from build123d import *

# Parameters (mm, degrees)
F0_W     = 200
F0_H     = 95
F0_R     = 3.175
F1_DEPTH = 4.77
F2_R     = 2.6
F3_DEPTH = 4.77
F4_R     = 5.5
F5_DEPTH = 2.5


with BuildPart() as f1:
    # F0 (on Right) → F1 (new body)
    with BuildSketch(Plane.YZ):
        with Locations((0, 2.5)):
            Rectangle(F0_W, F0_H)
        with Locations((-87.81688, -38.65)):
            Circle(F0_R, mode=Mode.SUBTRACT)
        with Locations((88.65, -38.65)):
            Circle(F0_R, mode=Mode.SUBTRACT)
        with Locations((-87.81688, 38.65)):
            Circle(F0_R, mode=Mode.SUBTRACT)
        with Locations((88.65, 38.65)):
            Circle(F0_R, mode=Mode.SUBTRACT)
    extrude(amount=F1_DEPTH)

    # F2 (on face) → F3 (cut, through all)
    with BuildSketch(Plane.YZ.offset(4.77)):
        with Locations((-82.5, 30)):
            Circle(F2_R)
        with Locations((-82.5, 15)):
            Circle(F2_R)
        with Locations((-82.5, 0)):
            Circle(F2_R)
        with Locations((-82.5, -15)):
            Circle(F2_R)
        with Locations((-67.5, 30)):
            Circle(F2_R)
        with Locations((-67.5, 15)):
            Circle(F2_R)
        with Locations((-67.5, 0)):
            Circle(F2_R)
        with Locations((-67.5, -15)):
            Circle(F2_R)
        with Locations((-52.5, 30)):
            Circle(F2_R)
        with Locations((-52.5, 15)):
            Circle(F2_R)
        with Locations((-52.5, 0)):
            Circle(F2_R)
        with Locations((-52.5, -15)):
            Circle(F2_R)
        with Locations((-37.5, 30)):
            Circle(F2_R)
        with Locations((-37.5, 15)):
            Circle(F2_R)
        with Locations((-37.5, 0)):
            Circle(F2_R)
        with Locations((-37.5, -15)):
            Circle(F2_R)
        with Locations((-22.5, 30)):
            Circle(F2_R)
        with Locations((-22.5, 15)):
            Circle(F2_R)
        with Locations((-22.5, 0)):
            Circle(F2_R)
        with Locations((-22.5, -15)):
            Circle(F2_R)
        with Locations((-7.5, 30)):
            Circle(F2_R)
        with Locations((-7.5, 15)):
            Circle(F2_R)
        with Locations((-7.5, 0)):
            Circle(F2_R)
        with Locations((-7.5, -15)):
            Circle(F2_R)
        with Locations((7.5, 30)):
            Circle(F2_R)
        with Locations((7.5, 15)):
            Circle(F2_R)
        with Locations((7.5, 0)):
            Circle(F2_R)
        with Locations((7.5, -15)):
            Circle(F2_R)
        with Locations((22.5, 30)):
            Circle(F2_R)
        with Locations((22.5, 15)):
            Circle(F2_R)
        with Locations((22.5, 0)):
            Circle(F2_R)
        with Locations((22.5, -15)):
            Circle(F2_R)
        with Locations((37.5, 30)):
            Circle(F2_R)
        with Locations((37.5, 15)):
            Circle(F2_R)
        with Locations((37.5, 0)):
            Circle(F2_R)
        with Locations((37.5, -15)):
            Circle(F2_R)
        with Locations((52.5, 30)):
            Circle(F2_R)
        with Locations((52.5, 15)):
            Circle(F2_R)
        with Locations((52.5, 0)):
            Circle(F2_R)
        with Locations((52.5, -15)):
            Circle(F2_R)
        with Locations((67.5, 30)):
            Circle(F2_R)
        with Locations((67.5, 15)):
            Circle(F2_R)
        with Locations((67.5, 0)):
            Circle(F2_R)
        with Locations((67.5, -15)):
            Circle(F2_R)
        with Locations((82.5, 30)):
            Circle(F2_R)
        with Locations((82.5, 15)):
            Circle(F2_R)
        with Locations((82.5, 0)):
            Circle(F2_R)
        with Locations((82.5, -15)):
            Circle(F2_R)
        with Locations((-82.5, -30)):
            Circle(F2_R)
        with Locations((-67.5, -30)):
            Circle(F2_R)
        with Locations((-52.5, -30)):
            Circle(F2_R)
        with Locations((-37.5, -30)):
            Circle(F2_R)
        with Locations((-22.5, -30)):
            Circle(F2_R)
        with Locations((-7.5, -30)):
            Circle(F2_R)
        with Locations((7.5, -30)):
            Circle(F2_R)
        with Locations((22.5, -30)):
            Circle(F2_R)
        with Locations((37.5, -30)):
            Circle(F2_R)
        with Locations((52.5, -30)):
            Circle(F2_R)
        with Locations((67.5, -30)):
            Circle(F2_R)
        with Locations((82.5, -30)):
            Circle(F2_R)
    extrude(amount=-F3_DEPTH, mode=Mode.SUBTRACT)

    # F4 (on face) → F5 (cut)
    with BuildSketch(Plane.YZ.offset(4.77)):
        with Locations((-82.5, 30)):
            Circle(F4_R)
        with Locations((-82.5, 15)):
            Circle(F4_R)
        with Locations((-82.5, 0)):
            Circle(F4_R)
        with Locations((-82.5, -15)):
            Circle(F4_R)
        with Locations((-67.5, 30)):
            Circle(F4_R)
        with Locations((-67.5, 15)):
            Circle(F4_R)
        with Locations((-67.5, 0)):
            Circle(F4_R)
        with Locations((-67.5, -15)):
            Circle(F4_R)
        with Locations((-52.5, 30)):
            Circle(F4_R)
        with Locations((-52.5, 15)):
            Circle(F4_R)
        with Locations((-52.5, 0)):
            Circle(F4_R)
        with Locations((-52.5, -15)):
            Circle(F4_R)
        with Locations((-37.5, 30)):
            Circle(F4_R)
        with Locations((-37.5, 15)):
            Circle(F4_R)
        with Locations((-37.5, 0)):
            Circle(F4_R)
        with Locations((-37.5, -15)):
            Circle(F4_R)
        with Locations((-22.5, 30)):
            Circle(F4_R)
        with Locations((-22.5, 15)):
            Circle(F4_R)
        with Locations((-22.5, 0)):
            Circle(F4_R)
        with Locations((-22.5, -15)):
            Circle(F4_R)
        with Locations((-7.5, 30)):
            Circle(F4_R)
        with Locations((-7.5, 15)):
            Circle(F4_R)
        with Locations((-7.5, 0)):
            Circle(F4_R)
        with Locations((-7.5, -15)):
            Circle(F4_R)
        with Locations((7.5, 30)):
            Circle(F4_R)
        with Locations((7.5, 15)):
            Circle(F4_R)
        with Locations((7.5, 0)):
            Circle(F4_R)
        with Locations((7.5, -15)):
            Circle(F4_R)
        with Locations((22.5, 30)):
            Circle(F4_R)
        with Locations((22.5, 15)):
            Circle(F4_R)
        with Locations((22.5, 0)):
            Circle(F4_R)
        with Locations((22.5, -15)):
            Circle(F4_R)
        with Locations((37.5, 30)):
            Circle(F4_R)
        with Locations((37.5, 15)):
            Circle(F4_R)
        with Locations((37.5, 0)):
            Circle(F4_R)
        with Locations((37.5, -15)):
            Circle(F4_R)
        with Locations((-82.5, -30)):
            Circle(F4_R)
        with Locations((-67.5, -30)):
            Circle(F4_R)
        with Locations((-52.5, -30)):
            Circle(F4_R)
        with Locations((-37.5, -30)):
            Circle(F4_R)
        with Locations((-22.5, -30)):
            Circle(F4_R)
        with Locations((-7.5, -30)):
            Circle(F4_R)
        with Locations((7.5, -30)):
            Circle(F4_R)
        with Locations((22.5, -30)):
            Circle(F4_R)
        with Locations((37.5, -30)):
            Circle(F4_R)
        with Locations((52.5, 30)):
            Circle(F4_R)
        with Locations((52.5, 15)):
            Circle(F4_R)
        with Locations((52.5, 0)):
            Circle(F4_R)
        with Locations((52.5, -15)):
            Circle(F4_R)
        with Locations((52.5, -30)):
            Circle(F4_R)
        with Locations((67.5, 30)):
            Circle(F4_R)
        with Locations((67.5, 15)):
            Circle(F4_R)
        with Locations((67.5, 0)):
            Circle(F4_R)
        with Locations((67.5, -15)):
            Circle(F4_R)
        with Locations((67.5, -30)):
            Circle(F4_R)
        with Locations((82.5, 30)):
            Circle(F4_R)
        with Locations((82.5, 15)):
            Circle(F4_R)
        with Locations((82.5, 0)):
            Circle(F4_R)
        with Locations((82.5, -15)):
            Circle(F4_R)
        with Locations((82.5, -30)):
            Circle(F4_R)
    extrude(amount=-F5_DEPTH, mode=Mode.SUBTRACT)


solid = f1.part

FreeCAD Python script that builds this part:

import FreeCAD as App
import Part
import Sketcher
from FreeCAD import Vector
Q = App.Units.Quantity


def add_polygon(sketch, points):
    """Adds a closed chain of lines whose ends are joined by coincident constraints."""
    first, n = sketch.GeometryCount, len(points)
    for a, b in zip(points, points[1:] + points[:1]):
        sketch.addGeometry(Part.LineSegment(App.Vector(*a, 0), App.Vector(*b, 0)), False)
    for i in range(n):
        sketch.addConstraint(Sketcher.Constraint("Coincident", first + i, 2, first + (i + 1) % n, 1))

doc = App.newDocument("Part")
body = doc.addObject("PartDesign::Body", "Body")

sketch1 = body.newObject("Sketcher::SketchObject", "Sketch")
sketch1.AttachmentSupport = (doc.getObject("YZ_Plane"), [""])
sketch1.MapMode = "FlatFace"
add_polygon(sketch1, [(-100, 50), (-100, -45), (100, -45), (100, 50)])
sketch1.addGeometry(Part.Circle(Vector(-87.8, -38.6, 0), Vector(0, 0, 1), 3.2), False)
sketch1.addGeometry(Part.Circle(Vector(88.7, -38.6, 0), Vector(0, 0, 1), 3.2), False)
sketch1.addGeometry(Part.Circle(Vector(-87.8, 38.6, 0), Vector(0, 0, 1), 3.2), False)
sketch1.addGeometry(Part.Circle(Vector(88.7, 38.6, 0), Vector(0, 0, 1), 3.2), False)
sketch1.addConstraint(Sketcher.Constraint("Vertical", 0))
sketch1.addConstraint(Sketcher.Constraint("Horizontal", 1))
sketch1.addConstraint(Sketcher.Constraint("Vertical", 2))
sketch1.addConstraint(Sketcher.Constraint("Horizontal", 3))
sketch1.addConstraint(Sketcher.Constraint("Equal", 4, 5))
sketch1.addConstraint(Sketcher.Constraint("Equal", 5, 6))
sketch1.addConstraint(Sketcher.Constraint("Equal", 6, 7))
sketch1.addConstraint(Sketcher.Constraint("Symmetric", 4, 3, 6, 3, -1))
sketch1.addConstraint(Sketcher.Constraint("Symmetric", 5, 3, 7, 3, -1))
sketch1.addConstraint(Sketcher.Constraint("Horizontal", 4, 3, 5, 3))
sketch1.addConstraint(Sketcher.Constraint("Diameter", 4, Q("6.35 mm")))
sketch1.addConstraint(Sketcher.Constraint("DistanceX", 1, 1, 1, 2, Q("200 mm")))
sketch1.addConstraint(Sketcher.Constraint("DistanceY", 0, 2, 0, 1, Q("95 mm")))
sketch1.addConstraint(Sketcher.Constraint("DistanceX", 0, 2, -1, 1, Q("100 mm")))
sketch1.addConstraint(Sketcher.Constraint("DistanceY", 0, 2, -1, 1, Q("45 mm")))
sketch1.addConstraint(Sketcher.Constraint("DistanceY", 4, 3, 6, 3, Q("77.3 mm")))
sketch1.addConstraint(Sketcher.Constraint("DistanceX", -1, 1, 5, 3, Q("88.65 mm")))
sketch1.addConstraint(Sketcher.Constraint("DistanceX", 4, 3, -1, 1, Q("87.81688 mm")))
pad1 = body.newObject("PartDesign::Pad", "Pad")
pad1.Profile = sketch1
pad1.Length = 4.77

sketch2 = body.newObject("Sketcher::SketchObject", "Sketch001")
sketch2.AttachmentSupport = (doc.getObject("YZ_Plane"), [""])
sketch2.MapMode = "FlatFace"
sketch2.AttachmentOffset = App.Placement(Vector(0, 0, 4.77), App.Rotation())
sketch2.addGeometry(Part.Circle(Vector(-82.5, 30, 0), Vector(0, 0, 1), 2.6), False)
sketch2.addGeometry(Part.Circle(Vector(-82.5, 15, 0), Vector(0, 0, 1), 2.6), False)
sketch2.addGeometry(Part.Circle(Vector(-82.5, 0, 0), Vector(0, 0, 1), 2.6), False)
sketch2.addGeometry(Part.Circle(Vector(-82.5, -15, 0), Vector(0, 0, 1), 2.6), False)
sketch2.addGeometry(Part.Circle(Vector(-67.5, 30, 0), Vector(0, 0, 1), 2.6), False)
sketch2.addGeometry(Part.Circle(Vector(-67.5, 15, 0), Vector(0, 0, 1), 2.6), False)
sketch2.addGeometry(Part.Circle(Vector(-67.5, 0, 0), Vector(0, 0, 1), 2.6), False)
sketch2.addGeometry(Part.Circle(Vector(-67.5, -15, 0), Vector(0, 0, 1), 2.6), False)
sketch2.addGeometry(Part.Circle(Vector(-52.5, 30, 0), Vector(0, 0, 1), 2.6), False)
sketch2.addGeometry(Part.Circle(Vector(-52.5, 15, 0), Vector(0, 0, 1), 2.6), False)
sketch2.addGeometry(Part.Circle(Vector(-52.5, 0, 0), Vector(0, 0, 1), 2.6), False)
sketch2.addGeometry(Part.Circle(Vector(-52.5, -15, 0), Vector(0, 0, 1), 2.6), False)
sketch2.addGeometry(Part.Circle(Vector(-37.5, 30, 0), Vector(0, 0, 1), 2.6), False)
sketch2.addGeometry(Part.Circle(Vector(-37.5, 15, 0), Vector(0, 0, 1), 2.6), False)
sketch2.addGeometry(Part.Circle(Vector(-37.5, 0, 0), Vector(0, 0, 1), 2.6), False)
sketch2.addGeometry(Part.Circle(Vector(-37.5, -15, 0), Vector(0, 0, 1), 2.6), False)
sketch2.addGeometry(Part.Circle(Vector(-22.5, 30, 0), Vector(0, 0, 1), 2.6), False)
sketch2.addGeometry(Part.Circle(Vector(-22.5, 15, 0), Vector(0, 0, 1), 2.6), False)
sketch2.addGeometry(Part.Circle(Vector(-22.5, 0, 0), Vector(0, 0, 1), 2.6), False)
sketch2.addGeometry(Part.Circle(Vector(-22.5, -15, 0), Vector(0, 0, 1), 2.6), False)
sketch2.addGeometry(Part.Circle(Vector(-7.5, 30, 0), Vector(0, 0, 1), 2.6), False)
sketch2.addGeometry(Part.Circle(Vector(-7.5, 15, 0), Vector(0, 0, 1), 2.6), False)
sketch2.addGeometry(Part.Circle(Vector(-7.5, 0, 0), Vector(0, 0, 1), 2.6), False)
sketch2.addGeometry(Part.Circle(Vector(-7.5, -15, 0), Vector(0, 0, 1), 2.6), False)
sketch2.addGeometry(Part.Circle(Vector(7.5, 30, 0), Vector(0, 0, 1), 2.6), False)
sketch2.addGeometry(Part.Circle(Vector(7.5, 15, 0), Vector(0, 0, 1), 2.6), False)
sketch2.addGeometry(Part.Circle(Vector(7.5, 0, 0), Vector(0, 0, 1), 2.6), False)
sketch2.addGeometry(Part.Circle(Vector(7.5, -15, 0), Vector(0, 0, 1), 2.6), False)
sketch2.addGeometry(Part.Circle(Vector(22.5, 30, 0), Vector(0, 0, 1), 2.6), False)
sketch2.addGeometry(Part.Circle(Vector(22.5, 15, 0), Vector(0, 0, 1), 2.6), False)
sketch2.addGeometry(Part.Circle(Vector(22.5, 0, 0), Vector(0, 0, 1), 2.6), False)
sketch2.addGeometry(Part.Circle(Vector(22.5, -15, 0), Vector(0, 0, 1), 2.6), False)
sketch2.addGeometry(Part.Circle(Vector(37.5, 30, 0), Vector(0, 0, 1), 2.6), False)
sketch2.addGeometry(Part.Circle(Vector(37.5, 15, 0), Vector(0, 0, 1), 2.6), False)
sketch2.addGeometry(Part.Circle(Vector(37.5, 0, 0), Vector(0, 0, 1), 2.6), False)
sketch2.addGeometry(Part.Circle(Vector(37.5, -15, 0), Vector(0, 0, 1), 2.6), False)
sketch2.addGeometry(Part.Circle(Vector(52.5, 30, 0), Vector(0, 0, 1), 2.6), False)
sketch2.addGeometry(Part.Circle(Vector(52.5, 15, 0), Vector(0, 0, 1), 2.6), False)
sketch2.addGeometry(Part.Circle(Vector(52.5, 0, 0), Vector(0, 0, 1), 2.6), False)
sketch2.addGeometry(Part.Circle(Vector(52.5, -15, 0), Vector(0, 0, 1), 2.6), False)
sketch2.addGeometry(Part.Circle(Vector(67.5, 30, 0), Vector(0, 0, 1), 2.6), False)
sketch2.addGeometry(Part.Circle(Vector(67.5, 15, 0), Vector(0, 0, 1), 2.6), False)
sketch2.addGeometry(Part.Circle(Vector(67.5, 0, 0), Vector(0, 0, 1), 2.6), False)
sketch2.addGeometry(Part.Circle(Vector(67.5, -15, 0), Vector(0, 0, 1), 2.6), False)
sketch2.addGeometry(Part.Circle(Vector(82.5, 30, 0), Vector(0, 0, 1), 2.6), False)
sketch2.addGeometry(Part.Circle(Vector(82.5, 15, 0), Vector(0, 0, 1), 2.6), False)
sketch2.addGeometry(Part.Circle(Vector(82.5, 0, 0), Vector(0, 0, 1), 2.6), False)
sketch2.addGeometry(Part.Circle(Vector(82.5, -15, 0), Vector(0, 0, 1), 2.6), False)
sketch2.addGeometry(Part.Circle(Vector(-82.5, -30, 0), Vector(0, 0, 1), 2.6), False)
sketch2.addGeometry(Part.Circle(Vector(-67.5, -30, 0), Vector(0, 0, 1), 2.6), False)
sketch2.addGeometry(Part.Circle(Vector(-52.5, -30, 0), Vector(0, 0, 1), 2.6), False)
sketch2.addGeometry(Part.Circle(Vector(-37.5, -30, 0), Vector(0, 0, 1), 2.6), False)
sketch2.addGeometry(Part.Circle(Vector(-22.5, -30, 0), Vector(0, 0, 1), 2.6), False)
sketch2.addGeometry(Part.Circle(Vector(-7.5, -30, 0), Vector(0, 0, 1), 2.6), False)
sketch2.addGeometry(Part.Circle(Vector(7.5, -30, 0), Vector(0, 0, 1), 2.6), False)
sketch2.addGeometry(Part.Circle(Vector(22.5, -30, 0), Vector(0, 0, 1), 2.6), False)
sketch2.addGeometry(Part.Circle(Vector(37.5, -30, 0), Vector(0, 0, 1), 2.6), False)
sketch2.addGeometry(Part.Circle(Vector(52.5, -30, 0), Vector(0, 0, 1), 2.6), False)
sketch2.addGeometry(Part.Circle(Vector(67.5, -30, 0), Vector(0, 0, 1), 2.6), False)
sketch2.addGeometry(Part.Circle(Vector(82.5, -30, 0), Vector(0, 0, 1), 2.6), False)
sketch2.addConstraint(Sketcher.Constraint("Equal", 0, 1))
sketch2.addConstraint(Sketcher.Constraint("Equal", 1, 2))
sketch2.addConstraint(Sketcher.Constraint("Equal", 2, 3))
sketch2.addConstraint(Sketcher.Constraint("Equal", 3, 4))
sketch2.addConstraint(Sketcher.Constraint("Equal", 4, 5))
sketch2.addConstraint(Sketcher.Constraint("Equal", 5, 6))
sketch2.addConstraint(Sketcher.Constraint("Equal", 6, 7))
sketch2.addConstraint(Sketcher.Constraint("Equal", 7, 8))
sketch2.addConstraint(Sketcher.Constraint("Equal", 8, 9))
sketch2.addConstraint(Sketcher.Constraint("Equal", 9, 10))
sketch2.addConstraint(Sketcher.Constraint("Equal", 10, 11))
sketch2.addConstraint(Sketcher.Constraint("Equal", 11, 12))
sketch2.addConstraint(Sketcher.Constraint("Equal", 12, 13))
sketch2.addConstraint(Sketcher.Constraint("Equal", 13, 14))
sketch2.addConstraint(Sketcher.Constraint("Equal", 14, 15))
sketch2.addConstraint(Sketcher.Constraint("Equal", 15, 16))
sketch2.addConstraint(Sketcher.Constraint("Equal", 16, 17))
sketch2.addConstraint(Sketcher.Constraint("Equal", 17, 18))
sketch2.addConstraint(Sketcher.Constraint("Equal", 18, 19))
sketch2.addConstraint(Sketcher.Constraint("Equal", 19, 20))
sketch2.addConstraint(Sketcher.Constraint("Equal", 20, 21))
sketch2.addConstraint(Sketcher.Constraint("Equal", 21, 22))
sketch2.addConstraint(Sketcher.Constraint("Equal", 22, 23))
sketch2.addConstraint(Sketcher.Constraint("Equal", 23, 24))
sketch2.addConstraint(Sketcher.Constraint("Equal", 24, 25))
sketch2.addConstraint(Sketcher.Constraint("Equal", 25, 26))
sketch2.addConstraint(Sketcher.Constraint("Equal", 26, 27))
sketch2.addConstraint(Sketcher.Constraint("Equal", 27, 28))
sketch2.addConstraint(Sketcher.Constraint("Equal", 28, 29))
sketch2.addConstraint(Sketcher.Constraint("Equal", 29, 30))
sketch2.addConstraint(Sketcher.Constraint("Equal", 30, 31))
sketch2.addConstraint(Sketcher.Constraint("Equal", 31, 32))
sketch2.addConstraint(Sketcher.Constraint("Equal", 32, 33))
sketch2.addConstraint(Sketcher.Constraint("Equal", 33, 34))
sketch2.addConstraint(Sketcher.Constraint("Equal", 34, 35))
sketch2.addConstraint(Sketcher.Constraint("Equal", 35, 36))
sketch2.addConstraint(Sketcher.Constraint("Equal", 36, 37))
sketch2.addConstraint(Sketcher.Constraint("Equal", 37, 38))
sketch2.addConstraint(Sketcher.Constraint("Equal", 38, 39))
sketch2.addConstraint(Sketcher.Constraint("Equal", 39, 40))
sketch2.addConstraint(Sketcher.Constraint("Equal", 40, 41))
sketch2.addConstraint(Sketcher.Constraint("Equal", 41, 42))
sketch2.addConstraint(Sketcher.Constraint("Equal", 42, 43))
sketch2.addConstraint(Sketcher.Constraint("Equal", 43, 44))
sketch2.addConstraint(Sketcher.Constraint("Equal", 44, 45))
sketch2.addConstraint(Sketcher.Constraint("Equal", 45, 46))
sketch2.addConstraint(Sketcher.Constraint("Equal", 46, 47))
sketch2.addConstraint(Sketcher.Constraint("Equal", 47, 48))
sketch2.addConstraint(Sketcher.Constraint("Equal", 48, 49))
sketch2.addConstraint(Sketcher.Constraint("Equal", 49, 50))
sketch2.addConstraint(Sketcher.Constraint("Equal", 50, 51))
sketch2.addConstraint(Sketcher.Constraint("Equal", 51, 52))
sketch2.addConstraint(Sketcher.Constraint("Equal", 52, 53))
sketch2.addConstraint(Sketcher.Constraint("Equal", 53, 54))
sketch2.addConstraint(Sketcher.Constraint("Equal", 54, 55))
sketch2.addConstraint(Sketcher.Constraint("Equal", 55, 56))
sketch2.addConstraint(Sketcher.Constraint("Equal", 56, 57))
sketch2.addConstraint(Sketcher.Constraint("Equal", 57, 58))
sketch2.addConstraint(Sketcher.Constraint("Equal", 58, 59))
sketch2.addConstraint(Sketcher.Constraint("Symmetric", 23, 3, 25, 3, -1, 1))
sketch2.addConstraint(Sketcher.Constraint("Symmetric", 22, 3, 26, 3, -1, 1))
sketch2.addConstraint(Sketcher.Constraint("Symmetric", 21, 3, 27, 3, -1, 1))
sketch2.addConstraint(Sketcher.Constraint("Symmetric", 19, 3, 29, 3, -1, 1))
sketch2.addConstraint(Sketcher.Constraint("Symmetric", 18, 3, 30, 3, -1, 1))
sketch2.addConstraint(Sketcher.Constraint("Symmetric", 17, 3, 31, 3, -1, 1))
sketch2.addConstraint(Sketcher.Constraint("Symmetric", 15, 3, 33, 3, -1, 1))
sketch2.addConstraint(Sketcher.Constraint("Symmetric", 14, 3, 34, 3, -1, 1))
sketch2.addConstraint(Sketcher.Constraint("Symmetric", 13, 3, 35, 3, -1, 1))
sketch2.addConstraint(Sketcher.Constraint("Symmetric", 11, 3, 37, 3, -1, 1))
sketch2.addConstraint(Sketcher.Constraint("Symmetric", 10, 3, 38, 3, -1, 1))
sketch2.addConstraint(Sketcher.Constraint("Symmetric", 9, 3, 39, 3, -1, 1))
sketch2.addConstraint(Sketcher.Constraint("Symmetric", 7, 3, 41, 3, -1, 1))
sketch2.addConstraint(Sketcher.Constraint("Symmetric", 6, 3, 42, 3, -1, 1))
sketch2.addConstraint(Sketcher.Constraint("Symmetric", 5, 3, 43, 3, -1, 1))
sketch2.addConstraint(Sketcher.Constraint("Symmetric", 3, 3, 45, 3, -1, 1))
sketch2.addConstraint(Sketcher.Constraint("Symmetric", 2, 3, 46, 3, -1, 1))
sketch2.addConstraint(Sketcher.Constraint("Symmetric", 1, 3, 47, 3, -1, 1))
sketch2.addConstraint(Sketcher.Constraint("Symmetric", 44, 3, 48, 3, -1, 1))
sketch2.addConstraint(Sketcher.Constraint("Symmetric", 40, 3, 49, 3, -1, 1))
sketch2.addConstraint(Sketcher.Constraint("Symmetric", 36, 3, 50, 3, -1, 1))
sketch2.addConstraint(Sketcher.Constraint("Symmetric", 32, 3, 51, 3, -1, 1))
sketch2.addConstraint(Sketcher.Constraint("Symmetric", 28, 3, 52, 3, -1, 1))
sketch2.addConstraint(Sketcher.Constraint("Symmetric", 24, 3, 53, 3, -1, 1))
sketch2.addConstraint(Sketcher.Constraint("Symmetric", 20, 3, 54, 3, -1, 1))
sketch2.addConstraint(Sketcher.Constraint("Symmetric", 16, 3, 55, 3, -1, 1))
sketch2.addConstraint(Sketcher.Constraint("Symmetric", 12, 3, 56, 3, -1, 1))
sketch2.addConstraint(Sketcher.Constraint("Symmetric", 8, 3, 57, 3, -1, 1))
sketch2.addConstraint(Sketcher.Constraint("Symmetric", 4, 3, 58, 3, -1, 1))
sketch2.addConstraint(Sketcher.Constraint("Symmetric", 0, 3, 59, 3, -1, 1))
sketch2.addConstraint(Sketcher.Constraint("Symmetric", 20, 3, 24, 3, -2))
sketch2.addConstraint(Sketcher.Constraint("Symmetric", 21, 3, 25, 3, -2))
sketch2.addConstraint(Sketcher.Constraint("Symmetric", 16, 3, 28, 3, -2))
sketch2.addConstraint(Sketcher.Constraint("Symmetric", 17, 3, 29, 3, -2))
sketch2.addConstraint(Sketcher.Constraint("Symmetric", 12, 3, 32, 3, -2))
sketch2.addConstraint(Sketcher.Constraint("Symmetric", 13, 3, 33, 3, -2))
sketch2.addConstraint(Sketcher.Constraint("Symmetric", 8, 3, 36, 3, -2))
sketch2.addConstraint(Sketcher.Constraint("Symmetric", 9, 3, 37, 3, -2))
sketch2.addConstraint(Sketcher.Constraint("Symmetric", 4, 3, 40, 3, -2))
sketch2.addConstraint(Sketcher.Constraint("Symmetric", 5, 3, 41, 3, -2))
sketch2.addConstraint(Sketcher.Constraint("Symmetric", 0, 3, 44, 3, -2))
sketch2.addConstraint(Sketcher.Constraint("Symmetric", 1, 3, 45, 3, -2))
sketch2.addConstraint(Sketcher.Constraint("PointOnObject", 2, 3, -1))
sketch2.addConstraint(Sketcher.Constraint("PointOnObject", 6, 3, -1))
sketch2.addConstraint(Sketcher.Constraint("PointOnObject", 10, 3, -1))
sketch2.addConstraint(Sketcher.Constraint("PointOnObject", 14, 3, -1))
sketch2.addConstraint(Sketcher.Constraint("PointOnObject", 18, 3, -1))
sketch2.addConstraint(Sketcher.Constraint("PointOnObject", 22, 3, -1))
sketch2.addConstraint(Sketcher.Constraint("Horizontal", 0, 3, 4, 3))
sketch2.addConstraint(Sketcher.Constraint("Horizontal", 1, 3, 5, 3))
sketch2.addConstraint(Sketcher.Constraint("Horizontal", 4, 3, 8, 3))
sketch2.addConstraint(Sketcher.Constraint("Horizontal", 5, 3, 9, 3))
sketch2.addConstraint(Sketcher.Constraint("Horizontal", 8, 3, 12, 3))
sketch2.addConstraint(Sketcher.Constraint("Horizontal", 9, 3, 13, 3))
sketch2.addConstraint(Sketcher.Constraint("Horizontal", 12, 3, 16, 3))
sketch2.addConstraint(Sketcher.Constraint("Horizontal", 13, 3, 17, 3))
sketch2.addConstraint(Sketcher.Constraint("Horizontal", 16, 3, 20, 3))
sketch2.addConstraint(Sketcher.Constraint("Horizontal", 17, 3, 21, 3))
sketch2.addConstraint(Sketcher.Constraint("Vertical", 0, 3, 1, 3))
sketch2.addConstraint(Sketcher.Constraint("Vertical", 1, 3, 2, 3))
sketch2.addConstraint(Sketcher.Constraint("Vertical", 4, 3, 5, 3))
sketch2.addConstraint(Sketcher.Constraint("Vertical", 5, 3, 6, 3))
sketch2.addConstraint(Sketcher.Constraint("Vertical", 8, 3, 9, 3))
sketch2.addConstraint(Sketcher.Constraint("Vertical", 9, 3, 10, 3))
sketch2.addConstraint(Sketcher.Constraint("Vertical", 12, 3, 13, 3))
sketch2.addConstraint(Sketcher.Constraint("Vertical", 13, 3, 14, 3))
sketch2.addConstraint(Sketcher.Constraint("Vertical", 16, 3, 17, 3))
sketch2.addConstraint(Sketcher.Constraint("Vertical", 17, 3, 18, 3))
sketch2.addConstraint(Sketcher.Constraint("Vertical", 20, 3, 21, 3))
sketch2.addConstraint(Sketcher.Constraint("Vertical", 21, 3, 22, 3))
sketch2.addConstraint(Sketcher.Constraint("Diameter", 0, Q("5.2 mm")))
sketch2.addConstraint(Sketcher.Constraint("DistanceY", -1, 1, 0, 3, Q("30 mm")))
sketch2.addConstraint(Sketcher.Constraint("DistanceY", -1, 1, 1, 3, Q("15 mm")))
sketch2.addConstraint(Sketcher.Constraint("DistanceX", 0, 3, 4, 3, Q("15 mm")))
sketch2.addConstraint(Sketcher.Constraint("DistanceX", 4, 3, 8, 3, Q("15 mm")))
sketch2.addConstraint(Sketcher.Constraint("DistanceX", 8, 3, 12, 3, Q("15 mm")))
sketch2.addConstraint(Sketcher.Constraint("DistanceX", 12, 3, 16, 3, Q("15 mm")))
sketch2.addConstraint(Sketcher.Constraint("DistanceX", 16, 3, 20, 3, Q("15 mm")))
sketch2.addConstraint(Sketcher.Constraint("DistanceX", 20, 3, 24, 3, Q("15 mm")))
pocket1 = body.newObject("PartDesign::Pocket", "Pocket")
pocket1.Profile = sketch2
pocket1.Type = "ThroughAll"

sketch3 = body.newObject("Sketcher::SketchObject", "Sketch002")
sketch3.AttachmentSupport = (doc.getObject("YZ_Plane"), [""])
sketch3.MapMode = "FlatFace"
sketch3.AttachmentOffset = App.Placement(Vector(0, 0, 4.77), App.Rotation())
sketch3.addGeometry(Part.Circle(Vector(-82, 30, 0), Vector(0, 0, 1), 6), False)
sketch3.addGeometry(Part.Circle(Vector(-82, 15, 0), Vector(0, 0, 1), 6), False)
sketch3.addGeometry(Part.Circle(Vector(-82, 0, 0), Vector(0, 0, 1), 6), False)
sketch3.addGeometry(Part.Circle(Vector(-82, -15, 0), Vector(0, 0, 1), 6), False)
sketch3.addGeometry(Part.Circle(Vector(-68, 30, 0), Vector(0, 0, 1), 6), False)
sketch3.addGeometry(Part.Circle(Vector(-68, 15, 0), Vector(0, 0, 1), 6), False)
sketch3.addGeometry(Part.Circle(Vector(-68, 0, 0), Vector(0, 0, 1), 6), False)
sketch3.addGeometry(Part.Circle(Vector(-68, -15, 0), Vector(0, 0, 1), 6), False)
sketch3.addGeometry(Part.Circle(Vector(-52, 30, 0), Vector(0, 0, 1), 6), False)
sketch3.addGeometry(Part.Circle(Vector(-52, 15, 0), Vector(0, 0, 1), 6), False)
sketch3.addGeometry(Part.Circle(Vector(-52, 0, 0), Vector(0, 0, 1), 6), False)
sketch3.addGeometry(Part.Circle(Vector(-52, -15, 0), Vector(0, 0, 1), 6), False)
sketch3.addGeometry(Part.Circle(Vector(-38, 30, 0), Vector(0, 0, 1), 6), False)
sketch3.addGeometry(Part.Circle(Vector(-38, 15, 0), Vector(0, 0, 1), 6), False)
sketch3.addGeometry(Part.Circle(Vector(-38, 0, 0), Vector(0, 0, 1), 6), False)
sketch3.addGeometry(Part.Circle(Vector(-38, -15, 0), Vector(0, 0, 1), 6), False)
sketch3.addGeometry(Part.Circle(Vector(-22, 30, 0), Vector(0, 0, 1), 6), False)
sketch3.addGeometry(Part.Circle(Vector(-22, 15, 0), Vector(0, 0, 1), 6), False)
sketch3.addGeometry(Part.Circle(Vector(-22, 0, 0), Vector(0, 0, 1), 6), False)
sketch3.addGeometry(Part.Circle(Vector(-22, -15, 0), Vector(0, 0, 1), 6), False)
sketch3.addGeometry(Part.Circle(Vector(-8, 30, 0), Vector(0, 0, 1), 6), False)
sketch3.addGeometry(Part.Circle(Vector(-8, 15, 0), Vector(0, 0, 1), 6), False)
sketch3.addGeometry(Part.Circle(Vector(-8, 0, 0), Vector(0, 0, 1), 6), False)
sketch3.addGeometry(Part.Circle(Vector(-8, -15, 0), Vector(0, 0, 1), 6), False)
sketch3.addGeometry(Part.Circle(Vector(8, 30, 0), Vector(0, 0, 1), 6), False)
sketch3.addGeometry(Part.Circle(Vector(8, 15, 0), Vector(0, 0, 1), 6), False)
sketch3.addGeometry(Part.Circle(Vector(8, 0, 0), Vector(0, 0, 1), 6), False)
sketch3.addGeometry(Part.Circle(Vector(8, -15, 0), Vector(0, 0, 1), 6), False)
sketch3.addGeometry(Part.Circle(Vector(22, 30, 0), Vector(0, 0, 1), 6), False)
sketch3.addGeometry(Part.Circle(Vector(22, 15, 0), Vector(0, 0, 1), 6), False)
sketch3.addGeometry(Part.Circle(Vector(22, 0, 0), Vector(0, 0, 1), 6), False)
sketch3.addGeometry(Part.Circle(Vector(22, -15, 0), Vector(0, 0, 1), 6), False)
sketch3.addGeometry(Part.Circle(Vector(38, 30, 0), Vector(0, 0, 1), 6), False)
sketch3.addGeometry(Part.Circle(Vector(38, 15, 0), Vector(0, 0, 1), 6), False)
sketch3.addGeometry(Part.Circle(Vector(38, 0, 0), Vector(0, 0, 1), 6), False)
sketch3.addGeometry(Part.Circle(Vector(38, -15, 0), Vector(0, 0, 1), 6), False)
sketch3.addGeometry(Part.Circle(Vector(-82, -30, 0), Vector(0, 0, 1), 6), False)
sketch3.addGeometry(Part.Circle(Vector(-68, -30, 0), Vector(0, 0, 1), 6), False)
sketch3.addGeometry(Part.Circle(Vector(-52, -30, 0), Vector(0, 0, 1), 6), False)
sketch3.addGeometry(Part.Circle(Vector(-38, -30, 0), Vector(0, 0, 1), 6), False)
sketch3.addGeometry(Part.Circle(Vector(-22, -30, 0), Vector(0, 0, 1), 6), False)
sketch3.addGeometry(Part.Circle(Vector(-8, -30, 0), Vector(0, 0, 1), 6), False)
sketch3.addGeometry(Part.Circle(Vector(8, -30, 0), Vector(0, 0, 1), 6), False)
sketch3.addGeometry(Part.Circle(Vector(22, -30, 0), Vector(0, 0, 1), 6), False)
sketch3.addGeometry(Part.Circle(Vector(38, -30, 0), Vector(0, 0, 1), 6), False)
sketch3.addGeometry(Part.Circle(Vector(52, 30, 0), Vector(0, 0, 1), 6), False)
sketch3.addGeometry(Part.Circle(Vector(52, 15, 0), Vector(0, 0, 1), 6), False)
sketch3.addGeometry(Part.Circle(Vector(52, 0, 0), Vector(0, 0, 1), 6), False)
sketch3.addGeometry(Part.Circle(Vector(52, -15, 0), Vector(0, 0, 1), 6), False)
sketch3.addGeometry(Part.Circle(Vector(52, -30, 0), Vector(0, 0, 1), 6), False)
sketch3.addGeometry(Part.Circle(Vector(68, 30, 0), Vector(0, 0, 1), 6), False)
sketch3.addGeometry(Part.Circle(Vector(68, 15, 0), Vector(0, 0, 1), 6), False)
sketch3.addGeometry(Part.Circle(Vector(68, 0, 0), Vector(0, 0, 1), 6), False)
sketch3.addGeometry(Part.Circle(Vector(68, -15, 0), Vector(0, 0, 1), 6), False)
sketch3.addGeometry(Part.Circle(Vector(68, -30, 0), Vector(0, 0, 1), 6), False)
sketch3.addGeometry(Part.Circle(Vector(82, 30, 0), Vector(0, 0, 1), 6), False)
sketch3.addGeometry(Part.Circle(Vector(82, 15, 0), Vector(0, 0, 1), 6), False)
sketch3.addGeometry(Part.Circle(Vector(82, 0, 0), Vector(0, 0, 1), 6), False)
sketch3.addGeometry(Part.Circle(Vector(82, -15, 0), Vector(0, 0, 1), 6), False)
sketch3.addGeometry(Part.Circle(Vector(82, -30, 0), Vector(0, 0, 1), 6), False)
sketch3.addConstraint(Sketcher.Constraint("Equal", 0, 1))
sketch3.addConstraint(Sketcher.Constraint("Equal", 1, 2))
sketch3.addConstraint(Sketcher.Constraint("Equal", 2, 3))
sketch3.addConstraint(Sketcher.Constraint("Equal", 3, 4))
sketch3.addConstraint(Sketcher.Constraint("Equal", 4, 5))
sketch3.addConstraint(Sketcher.Constraint("Equal", 5, 6))
sketch3.addConstraint(Sketcher.Constraint("Equal", 6, 7))
sketch3.addConstraint(Sketcher.Constraint("Equal", 7, 8))
sketch3.addConstraint(Sketcher.Constraint("Equal", 8, 9))
sketch3.addConstraint(Sketcher.Constraint("Equal", 9, 10))
sketch3.addConstraint(Sketcher.Constraint("Equal", 10, 11))
sketch3.addConstraint(Sketcher.Constraint("Equal", 11, 12))
sketch3.addConstraint(Sketcher.Constraint("Equal", 12, 13))
sketch3.addConstraint(Sketcher.Constraint("Equal", 13, 14))
sketch3.addConstraint(Sketcher.Constraint("Equal", 14, 15))
sketch3.addConstraint(Sketcher.Constraint("Equal", 15, 16))
sketch3.addConstraint(Sketcher.Constraint("Equal", 16, 17))
sketch3.addConstraint(Sketcher.Constraint("Equal", 17, 18))
sketch3.addConstraint(Sketcher.Constraint("Equal", 18, 19))
sketch3.addConstraint(Sketcher.Constraint("Equal", 19, 20))
sketch3.addConstraint(Sketcher.Constraint("Equal", 20, 21))
sketch3.addConstraint(Sketcher.Constraint("Equal", 21, 22))
sketch3.addConstraint(Sketcher.Constraint("Equal", 22, 23))
sketch3.addConstraint(Sketcher.Constraint("Equal", 23, 24))
sketch3.addConstraint(Sketcher.Constraint("Equal", 24, 25))
sketch3.addConstraint(Sketcher.Constraint("Equal", 25, 26))
sketch3.addConstraint(Sketcher.Constraint("Equal", 26, 27))
sketch3.addConstraint(Sketcher.Constraint("Equal", 27, 28))
sketch3.addConstraint(Sketcher.Constraint("Equal", 28, 29))
sketch3.addConstraint(Sketcher.Constraint("Equal", 29, 30))
sketch3.addConstraint(Sketcher.Constraint("Equal", 30, 31))
sketch3.addConstraint(Sketcher.Constraint("Equal", 31, 32))
sketch3.addConstraint(Sketcher.Constraint("Equal", 32, 33))
sketch3.addConstraint(Sketcher.Constraint("Equal", 33, 34))
sketch3.addConstraint(Sketcher.Constraint("Equal", 34, 35))
sketch3.addConstraint(Sketcher.Constraint("Equal", 35, 36))
sketch3.addConstraint(Sketcher.Constraint("Equal", 36, 37))
sketch3.addConstraint(Sketcher.Constraint("Equal", 37, 38))
sketch3.addConstraint(Sketcher.Constraint("Equal", 38, 39))
sketch3.addConstraint(Sketcher.Constraint("Equal", 39, 40))
sketch3.addConstraint(Sketcher.Constraint("Equal", 40, 41))
sketch3.addConstraint(Sketcher.Constraint("Equal", 41, 42))
sketch3.addConstraint(Sketcher.Constraint("Equal", 42, 43))
sketch3.addConstraint(Sketcher.Constraint("Equal", 43, 44))
sketch3.addConstraint(Sketcher.Constraint("Equal", 44, 45))
sketch3.addConstraint(Sketcher.Constraint("Equal", 45, 46))
sketch3.addConstraint(Sketcher.Constraint("Equal", 46, 47))
sketch3.addConstraint(Sketcher.Constraint("Equal", 47, 48))
sketch3.addConstraint(Sketcher.Constraint("Equal", 48, 49))
sketch3.addConstraint(Sketcher.Constraint("Equal", 49, 50))
sketch3.addConstraint(Sketcher.Constraint("Equal", 50, 51))
sketch3.addConstraint(Sketcher.Constraint("Equal", 51, 52))
sketch3.addConstraint(Sketcher.Constraint("Equal", 52, 53))
sketch3.addConstraint(Sketcher.Constraint("Equal", 53, 54))
sketch3.addConstraint(Sketcher.Constraint("Equal", 54, 55))
sketch3.addConstraint(Sketcher.Constraint("Equal", 55, 56))
sketch3.addConstraint(Sketcher.Constraint("Equal", 56, 57))
sketch3.addConstraint(Sketcher.Constraint("Equal", 57, 58))
sketch3.addConstraint(Sketcher.Constraint("Equal", 58, 59))
sketch3.addConstraint(Sketcher.Constraint("Symmetric", 23, 3, 25, 3, -1, 1))
sketch3.addConstraint(Sketcher.Constraint("Symmetric", 22, 3, 26, 3, -1, 1))
sketch3.addConstraint(Sketcher.Constraint("Symmetric", 21, 3, 27, 3, -1, 1))
sketch3.addConstraint(Sketcher.Constraint("Symmetric", 19, 3, 29, 3, -1, 1))
sketch3.addConstraint(Sketcher.Constraint("Symmetric", 18, 3, 30, 3, -1, 1))
sketch3.addConstraint(Sketcher.Constraint("Symmetric", 17, 3, 31, 3, -1, 1))
sketch3.addConstraint(Sketcher.Constraint("Symmetric", 15, 3, 33, 3, -1, 1))
sketch3.addConstraint(Sketcher.Constraint("Symmetric", 14, 3, 34, 3, -1, 1))
sketch3.addConstraint(Sketcher.Constraint("Symmetric", 13, 3, 35, 3, -1, 1))
sketch3.addConstraint(Sketcher.Constraint("Symmetric", 32, 3, 39, 3, -1, 1))
sketch3.addConstraint(Sketcher.Constraint("Symmetric", 28, 3, 40, 3, -1, 1))
sketch3.addConstraint(Sketcher.Constraint("Symmetric", 24, 3, 41, 3, -1, 1))
sketch3.addConstraint(Sketcher.Constraint("Symmetric", 20, 3, 42, 3, -1, 1))
sketch3.addConstraint(Sketcher.Constraint("Symmetric", 16, 3, 43, 3, -1, 1))
sketch3.addConstraint(Sketcher.Constraint("Symmetric", 12, 3, 44, 3, -1, 1))
sketch3.addConstraint(Sketcher.Constraint("Symmetric", 38, 3, 45, 3, -1, 1))
sketch3.addConstraint(Sketcher.Constraint("Symmetric", 11, 3, 46, 3, -1, 1))
sketch3.addConstraint(Sketcher.Constraint("Symmetric", 10, 3, 47, 3, -1, 1))
sketch3.addConstraint(Sketcher.Constraint("Symmetric", 9, 3, 48, 3, -1, 1))
sketch3.addConstraint(Sketcher.Constraint("Symmetric", 8, 3, 49, 3, -1, 1))
sketch3.addConstraint(Sketcher.Constraint("Symmetric", 37, 3, 50, 3, -1, 1))
sketch3.addConstraint(Sketcher.Constraint("Symmetric", 7, 3, 51, 3, -1, 1))
sketch3.addConstraint(Sketcher.Constraint("Symmetric", 6, 3, 52, 3, -1, 1))
sketch3.addConstraint(Sketcher.Constraint("Symmetric", 5, 3, 53, 3, -1, 1))
sketch3.addConstraint(Sketcher.Constraint("Symmetric", 4, 3, 54, 3, -1, 1))
sketch3.addConstraint(Sketcher.Constraint("Symmetric", 36, 3, 55, 3, -1, 1))
sketch3.addConstraint(Sketcher.Constraint("Symmetric", 3, 3, 56, 3, -1, 1))
sketch3.addConstraint(Sketcher.Constraint("Symmetric", 2, 3, 57, 3, -1, 1))
sketch3.addConstraint(Sketcher.Constraint("Symmetric", 1, 3, 58, 3, -1, 1))
sketch3.addConstraint(Sketcher.Constraint("Symmetric", 0, 3, 59, 3, -1, 1))
sketch3.addConstraint(Sketcher.Constraint("Symmetric", 20, 3, 24, 3, -2))
sketch3.addConstraint(Sketcher.Constraint("Symmetric", 21, 3, 25, 3, -2))
sketch3.addConstraint(Sketcher.Constraint("Symmetric", 16, 3, 28, 3, -2))
sketch3.addConstraint(Sketcher.Constraint("Symmetric", 17, 3, 29, 3, -2))
sketch3.addConstraint(Sketcher.Constraint("Symmetric", 12, 3, 32, 3, -2))
sketch3.addConstraint(Sketcher.Constraint("Symmetric", 13, 3, 33, 3, -2))
sketch3.addConstraint(Sketcher.Constraint("Symmetric", 8, 3, 45, 3, -2))
sketch3.addConstraint(Sketcher.Constraint("Symmetric", 9, 3, 46, 3, -2))
sketch3.addConstraint(Sketcher.Constraint("Symmetric", 4, 3, 50, 3, -2))
sketch3.addConstraint(Sketcher.Constraint("Symmetric", 5, 3, 51, 3, -2))
sketch3.addConstraint(Sketcher.Constraint("Symmetric", 0, 3, 55, 3, -2))
sketch3.addConstraint(Sketcher.Constraint("Symmetric", 1, 3, 56, 3, -2))
sketch3.addConstraint(Sketcher.Constraint("PointOnObject", 2, 3, -1))
sketch3.addConstraint(Sketcher.Constraint("PointOnObject", 6, 3, -1))
sketch3.addConstraint(Sketcher.Constraint("PointOnObject", 10, 3, -1))
sketch3.addConstraint(Sketcher.Constraint("PointOnObject", 14, 3, -1))
sketch3.addConstraint(Sketcher.Constraint("PointOnObject", 18, 3, -1))
sketch3.addConstraint(Sketcher.Constraint("PointOnObject", 22, 3, -1))
sketch3.addConstraint(Sketcher.Constraint("Horizontal", 0, 3, 4, 3))
sketch3.addConstraint(Sketcher.Constraint("Horizontal", 1, 3, 5, 3))
sketch3.addConstraint(Sketcher.Constraint("Horizontal", 4, 3, 8, 3))
sketch3.addConstraint(Sketcher.Constraint("Horizontal", 5, 3, 9, 3))
sketch3.addConstraint(Sketcher.Constraint("Horizontal", 8, 3, 12, 3))
sketch3.addConstraint(Sketcher.Constraint("Horizontal", 9, 3, 13, 3))
sketch3.addConstraint(Sketcher.Constraint("Horizontal", 12, 3, 16, 3))
sketch3.addConstraint(Sketcher.Constraint("Horizontal", 13, 3, 17, 3))
sketch3.addConstraint(Sketcher.Constraint("Horizontal", 16, 3, 20, 3))
sketch3.addConstraint(Sketcher.Constraint("Horizontal", 17, 3, 21, 3))
sketch3.addConstraint(Sketcher.Constraint("Vertical", 0, 3, 1, 3))
sketch3.addConstraint(Sketcher.Constraint("Vertical", 1, 3, 2, 3))
sketch3.addConstraint(Sketcher.Constraint("Vertical", 4, 3, 5, 3))
sketch3.addConstraint(Sketcher.Constraint("Vertical", 5, 3, 6, 3))
sketch3.addConstraint(Sketcher.Constraint("Vertical", 8, 3, 9, 3))
sketch3.addConstraint(Sketcher.Constraint("Vertical", 9, 3, 10, 3))
sketch3.addConstraint(Sketcher.Constraint("Vertical", 12, 3, 13, 3))
sketch3.addConstraint(Sketcher.Constraint("Vertical", 13, 3, 14, 3))
sketch3.addConstraint(Sketcher.Constraint("Vertical", 16, 3, 17, 3))
sketch3.addConstraint(Sketcher.Constraint("Vertical", 17, 3, 18, 3))
sketch3.addConstraint(Sketcher.Constraint("Vertical", 20, 3, 21, 3))
sketch3.addConstraint(Sketcher.Constraint("Vertical", 21, 3, 22, 3))
sketch3.addConstraint(Sketcher.Constraint("Diameter", 0, Q("11 mm")))
sketch3.addConstraint(Sketcher.Constraint("DistanceY", -1, 1, 0, 3, Q("30 mm")))
sketch3.addConstraint(Sketcher.Constraint("DistanceY", -1, 1, 1, 3, Q("15 mm")))
sketch3.addConstraint(Sketcher.Constraint("DistanceX", 0, 3, 4, 3, Q("15 mm")))
sketch3.addConstraint(Sketcher.Constraint("DistanceX", 4, 3, 8, 3, Q("15 mm")))
sketch3.addConstraint(Sketcher.Constraint("DistanceX", 8, 3, 12, 3, Q("15 mm")))
sketch3.addConstraint(Sketcher.Constraint("DistanceX", 12, 3, 16, 3, Q("15 mm")))
sketch3.addConstraint(Sketcher.Constraint("DistanceX", 16, 3, 20, 3, Q("15 mm")))
sketch3.addConstraint(Sketcher.Constraint("DistanceX", 20, 3, 24, 3, Q("15 mm")))
pocket2 = body.newObject("PartDesign::Pocket", "Pocket001")
pocket2.Profile = sketch3
pocket2.Length = 2.5

doc.recompute()
